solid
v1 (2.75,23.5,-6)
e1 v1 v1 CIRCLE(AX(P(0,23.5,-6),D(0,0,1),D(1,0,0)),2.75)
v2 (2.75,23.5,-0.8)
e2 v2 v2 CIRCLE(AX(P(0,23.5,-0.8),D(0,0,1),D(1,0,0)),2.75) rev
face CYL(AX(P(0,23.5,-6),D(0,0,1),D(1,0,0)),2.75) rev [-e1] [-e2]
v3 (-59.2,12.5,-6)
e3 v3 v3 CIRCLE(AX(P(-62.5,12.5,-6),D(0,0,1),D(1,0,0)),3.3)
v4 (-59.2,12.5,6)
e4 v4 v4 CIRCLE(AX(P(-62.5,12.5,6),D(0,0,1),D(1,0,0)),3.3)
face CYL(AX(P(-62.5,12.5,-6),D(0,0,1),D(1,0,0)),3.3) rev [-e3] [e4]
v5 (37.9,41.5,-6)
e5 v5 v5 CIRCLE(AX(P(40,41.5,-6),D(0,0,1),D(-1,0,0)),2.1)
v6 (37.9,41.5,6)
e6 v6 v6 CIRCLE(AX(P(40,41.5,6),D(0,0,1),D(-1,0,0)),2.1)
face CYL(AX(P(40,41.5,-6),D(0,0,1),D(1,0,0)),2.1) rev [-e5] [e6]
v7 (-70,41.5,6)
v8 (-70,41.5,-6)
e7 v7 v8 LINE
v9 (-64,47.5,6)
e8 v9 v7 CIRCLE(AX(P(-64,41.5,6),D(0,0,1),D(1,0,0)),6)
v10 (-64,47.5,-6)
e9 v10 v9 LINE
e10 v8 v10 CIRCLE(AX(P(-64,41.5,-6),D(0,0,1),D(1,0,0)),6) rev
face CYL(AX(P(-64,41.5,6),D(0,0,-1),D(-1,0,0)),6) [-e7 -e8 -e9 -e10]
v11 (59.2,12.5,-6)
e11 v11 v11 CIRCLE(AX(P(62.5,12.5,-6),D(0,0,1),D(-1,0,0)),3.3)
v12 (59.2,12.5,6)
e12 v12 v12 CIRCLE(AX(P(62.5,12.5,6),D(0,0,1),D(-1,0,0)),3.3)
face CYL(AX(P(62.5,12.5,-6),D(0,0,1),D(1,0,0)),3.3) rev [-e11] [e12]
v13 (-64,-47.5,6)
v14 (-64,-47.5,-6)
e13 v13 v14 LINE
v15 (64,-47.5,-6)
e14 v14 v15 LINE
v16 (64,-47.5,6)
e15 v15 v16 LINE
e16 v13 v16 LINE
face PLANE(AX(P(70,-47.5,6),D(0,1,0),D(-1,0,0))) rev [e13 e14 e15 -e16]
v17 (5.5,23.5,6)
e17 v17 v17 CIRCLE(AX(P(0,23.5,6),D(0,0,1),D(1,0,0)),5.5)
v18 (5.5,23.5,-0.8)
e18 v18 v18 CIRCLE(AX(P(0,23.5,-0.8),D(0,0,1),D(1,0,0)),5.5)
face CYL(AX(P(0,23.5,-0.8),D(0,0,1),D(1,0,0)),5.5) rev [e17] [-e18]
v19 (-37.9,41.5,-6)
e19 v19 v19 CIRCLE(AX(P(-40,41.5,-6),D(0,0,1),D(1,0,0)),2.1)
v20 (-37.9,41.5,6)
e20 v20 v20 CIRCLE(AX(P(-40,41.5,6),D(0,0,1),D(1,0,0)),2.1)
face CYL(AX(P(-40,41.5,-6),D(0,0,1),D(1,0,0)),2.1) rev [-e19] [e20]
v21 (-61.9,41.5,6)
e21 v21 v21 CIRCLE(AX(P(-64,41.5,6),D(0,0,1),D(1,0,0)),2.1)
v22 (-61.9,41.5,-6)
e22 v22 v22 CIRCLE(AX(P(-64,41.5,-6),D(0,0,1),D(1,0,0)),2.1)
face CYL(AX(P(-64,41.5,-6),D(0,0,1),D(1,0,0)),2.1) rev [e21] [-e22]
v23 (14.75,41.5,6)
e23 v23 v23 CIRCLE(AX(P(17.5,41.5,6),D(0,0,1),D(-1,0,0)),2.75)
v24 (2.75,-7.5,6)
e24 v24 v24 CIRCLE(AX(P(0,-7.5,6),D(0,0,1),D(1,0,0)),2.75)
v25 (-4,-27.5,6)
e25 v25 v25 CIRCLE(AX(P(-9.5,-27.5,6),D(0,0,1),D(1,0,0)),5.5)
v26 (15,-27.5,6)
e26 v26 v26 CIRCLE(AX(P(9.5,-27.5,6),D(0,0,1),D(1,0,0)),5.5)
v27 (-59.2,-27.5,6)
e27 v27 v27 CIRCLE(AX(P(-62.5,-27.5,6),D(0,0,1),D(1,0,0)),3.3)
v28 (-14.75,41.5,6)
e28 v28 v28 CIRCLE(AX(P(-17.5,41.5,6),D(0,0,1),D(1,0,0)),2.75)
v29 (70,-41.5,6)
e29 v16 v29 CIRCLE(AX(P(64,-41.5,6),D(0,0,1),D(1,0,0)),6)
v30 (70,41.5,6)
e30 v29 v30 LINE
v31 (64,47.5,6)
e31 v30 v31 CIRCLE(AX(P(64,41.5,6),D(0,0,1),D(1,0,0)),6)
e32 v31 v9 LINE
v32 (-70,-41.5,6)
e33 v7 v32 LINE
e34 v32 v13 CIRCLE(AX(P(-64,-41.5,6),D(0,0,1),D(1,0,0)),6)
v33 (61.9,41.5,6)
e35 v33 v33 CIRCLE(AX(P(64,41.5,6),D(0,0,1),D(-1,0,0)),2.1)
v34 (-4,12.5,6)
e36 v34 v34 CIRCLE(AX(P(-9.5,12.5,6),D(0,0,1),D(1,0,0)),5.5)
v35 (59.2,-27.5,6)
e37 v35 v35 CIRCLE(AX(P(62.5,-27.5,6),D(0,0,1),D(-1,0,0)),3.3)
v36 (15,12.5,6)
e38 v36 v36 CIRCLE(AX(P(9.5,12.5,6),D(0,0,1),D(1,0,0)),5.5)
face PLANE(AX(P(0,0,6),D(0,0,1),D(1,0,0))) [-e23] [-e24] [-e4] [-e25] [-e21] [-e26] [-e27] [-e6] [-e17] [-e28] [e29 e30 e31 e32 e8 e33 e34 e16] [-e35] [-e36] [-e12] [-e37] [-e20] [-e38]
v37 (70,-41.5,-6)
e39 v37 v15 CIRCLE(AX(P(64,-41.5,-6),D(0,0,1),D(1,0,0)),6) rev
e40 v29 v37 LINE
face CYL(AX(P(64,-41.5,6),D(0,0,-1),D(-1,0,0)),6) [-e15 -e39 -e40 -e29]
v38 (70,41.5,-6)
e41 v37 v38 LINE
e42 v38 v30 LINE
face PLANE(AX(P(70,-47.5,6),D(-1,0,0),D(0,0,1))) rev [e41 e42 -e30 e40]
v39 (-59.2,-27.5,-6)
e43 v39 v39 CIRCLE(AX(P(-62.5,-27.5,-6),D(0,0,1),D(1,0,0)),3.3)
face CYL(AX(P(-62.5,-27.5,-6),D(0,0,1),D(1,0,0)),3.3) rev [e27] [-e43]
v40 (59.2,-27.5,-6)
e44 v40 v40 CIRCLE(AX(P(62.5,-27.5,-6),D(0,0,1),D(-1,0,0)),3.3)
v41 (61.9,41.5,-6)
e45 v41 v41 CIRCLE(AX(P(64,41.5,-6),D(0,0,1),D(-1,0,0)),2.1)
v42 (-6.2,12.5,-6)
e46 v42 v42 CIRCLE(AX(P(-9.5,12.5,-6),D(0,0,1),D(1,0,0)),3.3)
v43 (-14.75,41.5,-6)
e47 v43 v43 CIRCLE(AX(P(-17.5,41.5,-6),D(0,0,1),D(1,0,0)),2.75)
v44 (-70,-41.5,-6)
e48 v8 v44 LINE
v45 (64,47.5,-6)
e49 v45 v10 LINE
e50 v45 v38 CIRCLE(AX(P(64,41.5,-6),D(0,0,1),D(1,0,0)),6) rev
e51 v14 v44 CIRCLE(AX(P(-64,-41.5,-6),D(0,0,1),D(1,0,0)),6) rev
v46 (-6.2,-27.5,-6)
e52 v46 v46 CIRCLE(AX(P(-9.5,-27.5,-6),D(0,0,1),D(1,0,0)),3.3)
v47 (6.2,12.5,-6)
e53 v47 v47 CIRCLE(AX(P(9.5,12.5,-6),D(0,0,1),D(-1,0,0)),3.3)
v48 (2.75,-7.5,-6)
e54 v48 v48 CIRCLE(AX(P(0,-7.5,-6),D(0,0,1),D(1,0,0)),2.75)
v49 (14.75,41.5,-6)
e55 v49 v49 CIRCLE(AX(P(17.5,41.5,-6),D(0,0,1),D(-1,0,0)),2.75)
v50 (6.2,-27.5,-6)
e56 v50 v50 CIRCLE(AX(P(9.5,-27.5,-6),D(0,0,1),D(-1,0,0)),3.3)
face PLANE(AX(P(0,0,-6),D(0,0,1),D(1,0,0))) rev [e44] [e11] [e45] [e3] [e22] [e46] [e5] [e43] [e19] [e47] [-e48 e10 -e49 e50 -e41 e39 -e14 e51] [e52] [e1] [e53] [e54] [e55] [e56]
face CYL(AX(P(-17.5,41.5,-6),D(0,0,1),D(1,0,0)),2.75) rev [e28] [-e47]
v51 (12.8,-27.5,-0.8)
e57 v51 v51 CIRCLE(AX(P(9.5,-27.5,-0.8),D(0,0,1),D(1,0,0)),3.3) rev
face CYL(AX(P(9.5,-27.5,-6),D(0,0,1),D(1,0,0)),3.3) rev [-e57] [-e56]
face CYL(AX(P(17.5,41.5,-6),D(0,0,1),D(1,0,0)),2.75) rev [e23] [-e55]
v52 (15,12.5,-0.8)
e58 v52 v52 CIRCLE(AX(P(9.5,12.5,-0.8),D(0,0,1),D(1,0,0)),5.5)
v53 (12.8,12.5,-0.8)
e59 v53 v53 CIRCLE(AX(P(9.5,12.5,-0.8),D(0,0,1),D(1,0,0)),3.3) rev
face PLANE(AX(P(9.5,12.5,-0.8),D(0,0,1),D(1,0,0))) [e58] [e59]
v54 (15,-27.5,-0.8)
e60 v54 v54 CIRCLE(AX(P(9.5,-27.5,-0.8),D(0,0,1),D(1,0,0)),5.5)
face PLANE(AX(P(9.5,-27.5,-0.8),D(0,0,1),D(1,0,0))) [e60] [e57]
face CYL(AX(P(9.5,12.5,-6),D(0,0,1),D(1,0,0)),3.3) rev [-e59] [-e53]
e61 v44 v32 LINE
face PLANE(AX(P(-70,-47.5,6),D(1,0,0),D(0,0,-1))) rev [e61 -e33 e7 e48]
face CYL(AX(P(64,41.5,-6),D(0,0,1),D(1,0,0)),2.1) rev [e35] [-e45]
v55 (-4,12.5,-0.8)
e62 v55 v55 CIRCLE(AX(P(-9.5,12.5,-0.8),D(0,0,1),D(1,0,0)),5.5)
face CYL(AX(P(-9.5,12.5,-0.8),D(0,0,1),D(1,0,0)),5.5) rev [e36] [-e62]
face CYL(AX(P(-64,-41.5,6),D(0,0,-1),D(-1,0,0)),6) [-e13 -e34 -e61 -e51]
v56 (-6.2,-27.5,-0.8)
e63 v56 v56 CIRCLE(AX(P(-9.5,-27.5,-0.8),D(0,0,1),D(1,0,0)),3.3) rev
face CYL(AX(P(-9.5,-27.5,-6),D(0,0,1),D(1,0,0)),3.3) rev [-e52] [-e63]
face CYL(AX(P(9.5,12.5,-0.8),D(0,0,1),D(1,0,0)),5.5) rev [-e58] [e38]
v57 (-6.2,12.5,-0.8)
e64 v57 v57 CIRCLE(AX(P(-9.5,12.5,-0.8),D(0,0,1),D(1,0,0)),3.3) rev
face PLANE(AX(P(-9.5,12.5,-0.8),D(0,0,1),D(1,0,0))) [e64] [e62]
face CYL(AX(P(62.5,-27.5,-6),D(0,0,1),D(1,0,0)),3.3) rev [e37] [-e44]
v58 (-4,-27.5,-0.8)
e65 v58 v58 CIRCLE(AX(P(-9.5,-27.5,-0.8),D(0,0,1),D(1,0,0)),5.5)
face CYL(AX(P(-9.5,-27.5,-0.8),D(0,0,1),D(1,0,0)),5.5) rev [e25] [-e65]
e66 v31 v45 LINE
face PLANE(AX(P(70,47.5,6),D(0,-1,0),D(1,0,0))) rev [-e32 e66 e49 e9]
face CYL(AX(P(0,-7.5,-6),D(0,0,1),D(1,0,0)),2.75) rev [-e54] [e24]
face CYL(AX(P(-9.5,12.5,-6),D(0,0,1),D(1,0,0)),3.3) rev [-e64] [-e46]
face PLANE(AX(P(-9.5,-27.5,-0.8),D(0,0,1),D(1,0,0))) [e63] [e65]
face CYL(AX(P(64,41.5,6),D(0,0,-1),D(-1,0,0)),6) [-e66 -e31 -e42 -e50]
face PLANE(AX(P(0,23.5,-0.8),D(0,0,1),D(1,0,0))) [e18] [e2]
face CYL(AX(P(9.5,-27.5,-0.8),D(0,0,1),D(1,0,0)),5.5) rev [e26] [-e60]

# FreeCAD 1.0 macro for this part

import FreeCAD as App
import Part
import Sketcher

V = App.Vector


def edges_at(feature, points):
    """Names of the edges that pass closest to the given points."""
    edges = feature.Shape.Edges
    near = lambda p: min(range(len(edges)), key=lambda i: edges[i].distToShape(Part.Vertex(*p))[0])
    return sorted({f"Edge{near(p) + 1}" for p in points})

doc = App.newDocument("Part")
body = doc.addObject("PartDesign::Body", "Body")

# Sketch on XY plane
sketch1 = body.newObject("Sketcher::SketchObject", "Sketch")
sketch1.AttachmentSupport = (doc.getObject("XY_Plane"), [""])
sketch1.MapMode = "FlatFace"
sketch1.addGeometry([
    Part.LineSegment(V(-70, 48, 0), V(-70, -48, 0)),
    Part.LineSegment(V(-70, -48, 0), V(70, -48, 0)),
    Part.LineSegment(V(70, -48, 0), V(70, 48, 0)),
    Part.LineSegment(V(70, 48, 0), V(-70, 48, 0)),
], False)
sketch1.addConstraint([
    Sketcher.Constraint("Coincident", 0, 2, 1, 1),
    Sketcher.Constraint("Coincident", 1, 2, 2, 1),
    Sketcher.Constraint("Coincident", 2, 2, 3, 1),
    Sketcher.Constraint("Coincident", 3, 2, 0, 1),
    Sketcher.Constraint("Vertical", 0),
    Sketcher.Constraint("Horizontal", 1),
    Sketcher.Constraint("Vertical", 2),
    Sketcher.Constraint("Horizontal", 3),
    Sketcher.Constraint("Symmetric", 0, 2, 2, 2, -1, 1),
    Sketcher.Constraint("DistanceX", 1, 1, 1, 2, 140.0),
    Sketcher.Constraint("DistanceY", 0, 2, 0, 1, 95.0),
])
pad1 = body.newObject("PartDesign::Pad", "Pad")
pad1.Profile = sketch1
pad1.Length = 12
pad1.Midplane = True

# Sketch on XY plane
sketch2 = body.newObject("Sketcher::SketchObject", "Sketch001")
sketch2.AttachmentSupport = (doc.getObject("XY_Plane"), [""])
sketch2.MapMode = "FlatFace"
sketch2.AttachmentOffset = App.Placement(V(0, 0, 6), App.Rotation())
sketch2.addGeometry([
    Part.Circle(V(0, 23.5, 0), V(0, 0, 1), 2.8),  # 0
    Part.Circle(V(0, -7.5, 0), V(0, 0, 1), 2.8),  # 1
    Part.Circle(V(-9.5, 12.5, 0), V(0, 0, 1), 3.3),  # 2
    Part.Circle(V(-9.5, -27.5, 0), V(0, 0, 1), 3.3),  # 3
    Part.Circle(V(-17.5, 41.5, 0), V(0, 0, 1), 2.8),  # 4
    Part.Circle(V(-40, 41.5, 0), V(0, 0, 1), 2.1),  # 5
    Part.Circle(V(-64, 41.5, 0), V(0, 0, 1), 2.1),  # 6
    Part.Circle(V(-62.5, 12.5, 0), V(0, 0, 1), 3.3),  # 7
    Part.Circle(V(-62.5, -27.5, 0), V(0, 0, 1), 3.3),  # 8
    Part.Circle(V(62.5, -27.5, 0), V(0, 0, 1), 3.3),  # 9
    Part.Circle(V(62.5, 12.5, 0), V(0, 0, 1), 3.3),  # 10
    Part.Circle(V(64, 41.5, 0), V(0, 0, 1), 2.1),  # 11
    Part.Circle(V(40, 41.5, 0), V(0, 0, 1), 2.1),  # 12
    Part.Circle(V(17.5, 41.5, 0), V(0, 0, 1), 2.8),  # 13
    Part.Circle(V(9.5, -27.5, 0), V(0, 0, 1), 3.3),  # 14
    Part.Circle(V(9.5, 12.5, 0), V(0, 0, 1), 3.3),  # 15
], False)
sketch2.addConstraint([
    Sketcher.Constraint("Equal", 0, 1),
    Sketcher.Constraint("Equal", 2, 3),
    Sketcher.Constraint("Equal", 1, 4),
    Sketcher.Constraint("Equal", 5, 6),
    Sketcher.Constraint("Equal", 3, 7),
    Sketcher.Constraint("Equal", 7, 8),
    Sketcher.Constraint("Equal", 8, 9),
    Sketcher.Constraint("Equal", 9, 10),
    Sketcher.Constraint("Equal", 6, 11),
    Sketcher.Constraint("Equal", 11, 12),
    Sketcher.Constraint("Equal", 4, 13),
    Sketcher.Constraint("Equal", 10, 14),
    Sketcher.Constraint("Equal", 14, 15),
    Sketcher.Constraint("Symmetric", 8, 3, 9, 3, -2),
    Sketcher.Constraint("Symmetric", 7, 3, 10, 3, -2),
    Sketcher.Constraint("Symmetric", 6, 3, 11, 3, -2),
    Sketcher.Constraint("Symmetric", 5, 3, 12, 3, -2),
    Sketcher.Constraint("Symmetric", 4, 3, 13, 3, -2),
    Sketcher.Constraint("Symmetric", 3, 3, 14, 3, -2),
    Sketcher.Constraint("Symmetric", 2, 3, 15, 3, -2),
    Sketcher.Constraint("PointOnObject", 0, 3, -2),
    Sketcher.Constraint("PointOnObject", 1, 3, -2),
    Sketcher.Constraint("Horizontal", 4, 3, 5, 3),
    Sketcher.Constraint("Horizontal", 5, 3, 6, 3),
    Sketcher.Constraint("Horizontal", 2, 3, 7, 3),
    Sketcher.Constraint("Horizontal", 3, 3, 8, 3),
    Sketcher.Constraint("Vertical", 2, 3, 3, 3),
    Sketcher.Constraint("Vertical", 7, 3, 8, 3),
    Sketcher.Constraint("Diameter", 0, 5.5),
    Sketcher.Constraint("Diameter", 2, 6.6),
    Sketcher.Constraint("Diameter", 5, 4.2),
    Sketcher.Constraint("DistanceX", 5, 3, -1, 1, 40.0),
    Sketcher.Constraint("DistanceX", 6, 3, -1, 1, 64.0),
    Sketcher.Constraint("DistanceY", 1, 3, 0, 3, 31.0),
    Sketcher.Constraint("DistanceY", 2, 3, 0, 3, 11.0),
    Sketcher.Constraint("DistanceY", 3, 3, 1, 3, 20.0),
    Sketcher.Constraint("DistanceY", 0, 3, 4, 3, 18.0),
    Sketcher.Constraint("DistanceX", 4, 3, 2, 3, 8.0),
    Sketcher.Constraint("DistanceX", 7, 3, 2, 3, 53.0),
    Sketcher.Constraint("DistanceX", 3, 3, 9, 3, 72.0),
    Sketcher.Constraint("DistanceY", -1, 1, 0, 3, 23.5),
])
pocket1 = body.newObject("PartDesign::Pocket", "Pocket")
pocket1.Profile = sketch2
pocket1.Type = "ThroughAll"

# Sketch on XY plane
sketch3 = body.newObject("Sketcher::SketchObject", "Sketch002")
sketch3.AttachmentSupport = (doc.getObject("XY_Plane"), [""])
sketch3.MapMode = "FlatFace"
sketch3.AttachmentOffset = App.Placement(V(0, 0, 6), App.Rotation())
sketch3.addGeometry([
    Part.Circle(V(-10, -28, 0), V(0, 0, 1), 6),  # 0
    Part.Circle(V(10, -28, 0), V(0, 0, 1), 6),  # 1
    Part.Circle(V(10, 12, 0), V(0, 0, 1), 6),  # 2
    Part.Circle(V(0, 24, 0), V(0, 0, 1), 6),  # 3
    Part.Circle(V(-10, 12, 0), V(0, 0, 1), 6),  # 4
], False)
sketch3.addConstraint([
    Sketcher.Constraint("Equal", 0, 1),
    Sketcher.Constraint("Equal", 1, 2),
    Sketcher.Constraint("Equal", 2, 3),
    Sketcher.Constraint("Equal", 3, 4),
    Sketcher.Constraint("Symmetric", 0, 3, 1, 3, -2),
    Sketcher.Constraint("Symmetric", 2, 3, 4, 3, -2),
    Sketcher.Constraint("PointOnObject", 3, 3, -2),
    Sketcher.Constraint("Vertical", 1, 3, 2, 3),
    Sketcher.Constraint("Diameter", 0, 11.0),
    Sketcher.Constraint("DistanceX", 0, 3, 1, 3, 19.0),
    Sketcher.Constraint("DistanceY", 1, 3, 2, 3, 40.0),
    Sketcher.Constraint("DistanceY", 2, 3, 3, 3, 11.0),
    Sketcher.Constraint("DistanceY", 0, 3, -1, 1, 27.5),
])
pocket2 = body.newObject("PartDesign::Pocket", "Pocket001")
pocket2.Profile = sketch3
pocket2.Length = 6.8
doc.recompute()

fillet = body.newObject("PartDesign::Fillet", "Fillet")
fillet.Base = (pocket2, edges_at(pocket2, [
    (-70, 47.5, 0),
    (70, 47.5, 0),
    (70, -47.5, 0),
    (-70, -47.5, 0),
]))
fillet.Radius = 6

doc.recompute()
